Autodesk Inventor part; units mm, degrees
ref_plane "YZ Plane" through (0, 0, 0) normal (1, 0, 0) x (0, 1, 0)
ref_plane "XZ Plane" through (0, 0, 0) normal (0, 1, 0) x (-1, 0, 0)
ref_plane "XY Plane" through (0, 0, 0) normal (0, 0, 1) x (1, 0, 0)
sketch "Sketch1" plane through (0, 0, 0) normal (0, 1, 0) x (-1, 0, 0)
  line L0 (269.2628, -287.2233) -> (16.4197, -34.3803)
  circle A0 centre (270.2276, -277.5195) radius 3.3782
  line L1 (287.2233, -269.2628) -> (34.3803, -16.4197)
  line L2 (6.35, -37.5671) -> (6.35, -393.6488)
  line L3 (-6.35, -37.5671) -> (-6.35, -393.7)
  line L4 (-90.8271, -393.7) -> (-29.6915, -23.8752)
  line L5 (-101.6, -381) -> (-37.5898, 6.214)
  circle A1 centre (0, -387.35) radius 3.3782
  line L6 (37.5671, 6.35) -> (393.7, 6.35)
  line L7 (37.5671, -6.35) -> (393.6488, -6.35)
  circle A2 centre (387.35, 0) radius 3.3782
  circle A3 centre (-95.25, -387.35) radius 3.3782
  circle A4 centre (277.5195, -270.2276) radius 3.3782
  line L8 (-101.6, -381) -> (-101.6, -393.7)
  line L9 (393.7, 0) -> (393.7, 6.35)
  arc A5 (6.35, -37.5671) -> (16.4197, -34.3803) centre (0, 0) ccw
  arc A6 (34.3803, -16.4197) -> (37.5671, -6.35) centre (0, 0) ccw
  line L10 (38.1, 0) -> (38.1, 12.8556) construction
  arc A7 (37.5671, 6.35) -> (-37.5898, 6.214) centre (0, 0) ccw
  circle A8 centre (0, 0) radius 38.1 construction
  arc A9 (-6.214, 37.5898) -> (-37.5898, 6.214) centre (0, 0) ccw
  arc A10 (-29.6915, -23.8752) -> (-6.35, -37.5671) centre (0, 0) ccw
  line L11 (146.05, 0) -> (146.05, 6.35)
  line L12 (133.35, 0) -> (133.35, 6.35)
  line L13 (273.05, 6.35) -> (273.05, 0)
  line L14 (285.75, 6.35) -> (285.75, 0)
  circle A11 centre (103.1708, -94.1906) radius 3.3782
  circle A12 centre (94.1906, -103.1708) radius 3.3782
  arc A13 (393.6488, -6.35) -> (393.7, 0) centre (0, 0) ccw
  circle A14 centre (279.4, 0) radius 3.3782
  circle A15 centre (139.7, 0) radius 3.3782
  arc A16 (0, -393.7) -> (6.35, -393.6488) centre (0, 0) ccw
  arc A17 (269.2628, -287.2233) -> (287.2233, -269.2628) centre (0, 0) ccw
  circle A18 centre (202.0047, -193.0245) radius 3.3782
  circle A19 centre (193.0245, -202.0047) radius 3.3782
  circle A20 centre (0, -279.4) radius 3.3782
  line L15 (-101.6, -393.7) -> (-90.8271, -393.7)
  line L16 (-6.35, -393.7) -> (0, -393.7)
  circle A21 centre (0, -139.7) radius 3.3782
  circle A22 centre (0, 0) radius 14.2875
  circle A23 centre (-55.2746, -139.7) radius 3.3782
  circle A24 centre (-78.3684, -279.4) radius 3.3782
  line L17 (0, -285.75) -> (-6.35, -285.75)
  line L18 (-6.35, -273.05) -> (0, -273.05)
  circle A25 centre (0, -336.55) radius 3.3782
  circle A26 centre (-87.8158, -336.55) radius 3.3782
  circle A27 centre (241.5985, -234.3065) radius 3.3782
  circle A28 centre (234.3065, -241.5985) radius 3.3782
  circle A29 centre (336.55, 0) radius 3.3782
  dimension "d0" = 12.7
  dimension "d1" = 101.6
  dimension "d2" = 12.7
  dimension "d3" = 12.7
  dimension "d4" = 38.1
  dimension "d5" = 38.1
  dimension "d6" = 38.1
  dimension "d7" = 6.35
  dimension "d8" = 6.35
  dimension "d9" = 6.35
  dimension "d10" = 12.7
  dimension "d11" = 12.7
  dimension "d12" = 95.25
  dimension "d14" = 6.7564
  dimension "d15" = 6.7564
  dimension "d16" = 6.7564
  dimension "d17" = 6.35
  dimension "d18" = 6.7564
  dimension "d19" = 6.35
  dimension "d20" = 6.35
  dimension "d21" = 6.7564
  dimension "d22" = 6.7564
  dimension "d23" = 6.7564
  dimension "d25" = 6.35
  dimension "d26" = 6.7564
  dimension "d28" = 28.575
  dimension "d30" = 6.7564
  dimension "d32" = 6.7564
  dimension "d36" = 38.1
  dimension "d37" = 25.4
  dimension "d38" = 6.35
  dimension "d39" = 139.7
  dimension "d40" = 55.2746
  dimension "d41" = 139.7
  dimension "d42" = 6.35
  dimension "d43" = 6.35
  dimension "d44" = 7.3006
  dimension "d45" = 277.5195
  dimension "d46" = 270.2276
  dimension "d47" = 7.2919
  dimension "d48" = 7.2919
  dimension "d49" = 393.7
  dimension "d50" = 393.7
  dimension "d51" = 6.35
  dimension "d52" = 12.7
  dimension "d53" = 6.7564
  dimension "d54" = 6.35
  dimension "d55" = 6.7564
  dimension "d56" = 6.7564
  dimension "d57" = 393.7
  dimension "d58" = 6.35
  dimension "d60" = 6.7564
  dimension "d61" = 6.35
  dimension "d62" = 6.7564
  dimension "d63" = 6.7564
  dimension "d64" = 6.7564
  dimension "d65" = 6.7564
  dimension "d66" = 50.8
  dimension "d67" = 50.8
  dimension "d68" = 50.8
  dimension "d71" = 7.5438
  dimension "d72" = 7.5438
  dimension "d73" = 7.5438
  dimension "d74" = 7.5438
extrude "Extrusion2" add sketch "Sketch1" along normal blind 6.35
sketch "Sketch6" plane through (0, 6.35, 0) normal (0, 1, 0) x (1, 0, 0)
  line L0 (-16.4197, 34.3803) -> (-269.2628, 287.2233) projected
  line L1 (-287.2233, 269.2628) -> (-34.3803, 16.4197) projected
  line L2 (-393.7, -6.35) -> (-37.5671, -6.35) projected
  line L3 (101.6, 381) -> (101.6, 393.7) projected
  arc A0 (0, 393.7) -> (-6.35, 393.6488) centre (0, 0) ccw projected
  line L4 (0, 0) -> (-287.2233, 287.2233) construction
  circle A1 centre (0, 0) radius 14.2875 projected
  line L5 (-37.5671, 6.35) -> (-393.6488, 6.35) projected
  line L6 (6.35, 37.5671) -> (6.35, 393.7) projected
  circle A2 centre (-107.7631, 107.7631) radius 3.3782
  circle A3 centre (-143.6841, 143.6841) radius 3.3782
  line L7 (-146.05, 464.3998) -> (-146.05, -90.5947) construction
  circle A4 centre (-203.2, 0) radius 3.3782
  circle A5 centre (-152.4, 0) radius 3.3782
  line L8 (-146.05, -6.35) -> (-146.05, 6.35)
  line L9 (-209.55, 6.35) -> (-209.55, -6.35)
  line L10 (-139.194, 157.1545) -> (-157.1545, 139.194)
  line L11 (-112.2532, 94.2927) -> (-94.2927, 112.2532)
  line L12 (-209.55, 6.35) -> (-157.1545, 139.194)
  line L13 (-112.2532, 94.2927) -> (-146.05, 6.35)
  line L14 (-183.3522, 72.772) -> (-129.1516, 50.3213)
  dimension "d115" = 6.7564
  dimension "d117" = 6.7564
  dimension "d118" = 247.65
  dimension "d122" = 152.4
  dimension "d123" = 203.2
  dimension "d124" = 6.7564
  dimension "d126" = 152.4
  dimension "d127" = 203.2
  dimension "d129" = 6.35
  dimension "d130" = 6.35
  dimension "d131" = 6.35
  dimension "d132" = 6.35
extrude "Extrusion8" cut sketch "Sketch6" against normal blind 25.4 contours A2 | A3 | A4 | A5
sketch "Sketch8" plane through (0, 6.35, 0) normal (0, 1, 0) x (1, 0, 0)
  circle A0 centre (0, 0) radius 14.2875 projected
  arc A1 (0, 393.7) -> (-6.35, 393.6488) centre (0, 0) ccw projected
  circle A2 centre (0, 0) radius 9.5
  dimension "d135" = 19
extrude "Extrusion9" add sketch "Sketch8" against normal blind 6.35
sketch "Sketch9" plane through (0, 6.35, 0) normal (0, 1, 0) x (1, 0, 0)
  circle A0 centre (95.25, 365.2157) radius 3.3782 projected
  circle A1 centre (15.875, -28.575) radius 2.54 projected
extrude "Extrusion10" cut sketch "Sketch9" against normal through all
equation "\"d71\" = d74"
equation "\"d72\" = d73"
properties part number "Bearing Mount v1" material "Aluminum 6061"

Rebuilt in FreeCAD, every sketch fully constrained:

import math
import FreeCAD as App
import Part
import Sketcher

V = App.Vector
Q = App.Units.Quantity

doc = App.newDocument("Part")
params = doc.addObject("Spreadsheet::Sheet", "Params")
for row, (alias, value) in enumerate([
    ("sketch1_radius", "15.5 in"),
    ("sketch1_radius2", "1.5 in"),
    ("sketch1_radius3", "1.5 in"),
    ("sketch1_diameter", "0.266 in"),
    ("sketch1_diameter2", "0.266 in"),
    ("pad1_length", "0.25 in"),
    ("sketch2_diameter", "0.266 in"),
    ("pocket1_length", "1 in"),
    ("sketch3_diameter", "1.125 in"),
    ("pad2_length", "0.25 in"),
    ("sketch4_diameter", "0.2 in"),
    ("sketch4_diameter2", "0.266 in"),
], start=1):
    params.set(f"A{row}", alias)
    params.set(f"B{row}", "=" + value)
    params.setAlias(f"B{row}", alias)

body = doc.addObject("PartDesign::Body", "Body")

sketch1 = doc.addObject("Sketcher::SketchObject", "Sketch")
body.addObject(sketch1)
sketch1.AttachmentSupport = (doc.XZ_Plane, [""])
sketch1.MapMode = "FlatFace"
sketch1.addGeometry([
    Part.LineSegment(V(-16.4197, -34.3803, 0), V(-269.2628, -287.2233, 0)),
    Part.ArcOfCircle(Part.Circle(V(0, 0, 0), V(0, 0, 1), 393.699987), math.radians(-136.84857), math.radians(-133.15143)),
    Part.LineSegment(V(-287.2233, -269.2628, 0), V(-34.3803, -16.4197, 0)),
    Part.ArcOfCircle(Part.Circle(V(-0.001314, -0.000519, 0), V(0, 0, 1), 38.098611), math.radians(-170.40637), math.radians(-154.471161)),
    Part.LineSegment(V(-37.5671, -6.35, 0), V(-393.6488, -6.35, 0)),
    Part.ArcOfCircle(Part.Circle(V(-0.19986, -0.002418, 0), V(0, 0, 1), 393.50014), math.radians(179.999648), math.radians(180.924283)),
    Part.LineSegment(V(-393.7, 0, 0), V(-393.7, 6.35, 0)),
    Part.LineSegment(V(-393.7, 6.35, 0), V(-37.5671, 6.35, 0)),
    Part.ArcOfCircle(Part.Circle(V(0, 0, 0), V(0, 0, 1), 38.099959), math.radians(9.38672), math.radians(170.40593)),
    Part.LineSegment(V(37.5898, 6.214, 0), V(101.6, -381, 0)),
    Part.LineSegment(V(101.6, -381, 0), V(101.6, -393.7, 0)),
    Part.LineSegment(V(101.6, -393.7, 0), V(90.8271, -393.7, 0)),
    Part.LineSegment(V(90.8271, -393.7, 0), V(29.6915, -23.8752, 0)),
    Part.ArcOfCircle(Part.Circle(V(0, 0, 0), V(0, 0, 1), 38.099959), math.radians(-80.40593), math.radians(-38.803072)),
    Part.LineSegment(V(6.35, -37.5671, 0), V(6.35, -393.7, 0)),
    Part.LineSegment(V(6.35, -393.7, 0), V(0, -393.7, 0)),
    Part.ArcOfCircle(Part.Circle(V(0.000807, 0.200076, 0), V(0, 0, 1), 393.900076), math.radians(-90.923813), math.radians(-90.000117)),
    Part.LineSegment(V(-6.35, -393.6488, 0), V(-6.35, -37.5671, 0)),
    Part.ArcOfCircle(Part.Circle(V(0.000332, 0.001374, 0), V(0, 0, 1), 38.101403), math.radians(-115.528251), math.radians(-99.594218)),
    Part.Circle(V(95.25, -387.35, 0), V(0, 0, 1), 3.3782),
    Part.Circle(V(0, -387.35, 0), V(0, 0, 1), 3.3782),
    Part.Circle(V(87.8158, -336.55, 0), V(0, 0, 1), 3.3782),
    Part.Circle(V(0, -336.55, 0), V(0, 0, 1), 3.3782),
    Part.Circle(V(78.3684, -279.4, 0), V(0, 0, 1), 3.3782),
    Part.Circle(V(0, -279.4, 0), V(0, 0, 1), 3.3782),
    Part.Circle(V(-234.3065, -241.5985, 0), V(0, 0, 1), 3.3782),
    Part.Circle(V(-241.5985, -234.3065, 0), V(0, 0, 1), 3.3782),
    Part.Circle(V(-193.0245, -202.0047, 0), V(0, 0, 1), 3.3782),
    Part.Circle(V(-202.0047, -193.0245, 0), V(0, 0, 1), 3.3782),
    Part.Circle(V(-270.2276, -277.5195, 0), V(0, 0, 1), 3.3782),
    Part.Circle(V(-277.5195, -270.2276, 0), V(0, 0, 1), 3.3782),
    Part.Circle(V(55.2746, -139.7, 0), V(0, 0, 1), 3.3782),
    Part.Circle(V(0, -139.7, 0), V(0, 0, 1), 3.3782),
    Part.Circle(V(-94.1906, -103.1708, 0), V(0, 0, 1), 3.3782),
    Part.Circle(V(-103.1708, -94.1906, 0), V(0, 0, 1), 3.3782),
    Part.Circle(V(0, 0, 0), V(0, 0, 1), 14.2875),
    Part.Circle(V(-139.7, 0, 0), V(0, 0, 1), 3.3782),
    Part.Circle(V(-279.4, 0, 0), V(0, 0, 1), 3.3782),
    Part.Circle(V(-336.55, 0, 0), V(0, 0, 1), 3.3782),
    Part.Circle(V(-387.35, 0, 0), V(0, 0, 1), 3.3782),
], False)
sketch1.addConstraint([
    Sketcher.Constraint("Coincident", 0, 2, 1, 2),
    Sketcher.Constraint("Coincident", 1, 1, 2, 1),
    Sketcher.Constraint("Coincident", 2, 2, 3, 2),
    Sketcher.Constraint("Coincident", 3, 1, 4, 1),
    Sketcher.Constraint("Coincident", 4, 2, 5, 2),
    Sketcher.Constraint("Coincident", 5, 1, 6, 1),
    Sketcher.Constraint("Coincident", 6, 2, 7, 1),
    Sketcher.Constraint("Coincident", 7, 2, 8, 2),
    Sketcher.Constraint("Coincident", 8, 1, 9, 1),
    Sketcher.Constraint("Coincident", 9, 2, 10, 1),
    Sketcher.Constraint("Coincident", 10, 2, 11, 1),
    Sketcher.Constraint("Coincident", 11, 2, 12, 1),
    Sketcher.Constraint("Coincident", 12, 2, 13, 2),
    Sketcher.Constraint("Coincident", 13, 1, 14, 1),
    Sketcher.Constraint("Coincident", 14, 2, 15, 1),
    Sketcher.Constraint("Coincident", 15, 2, 16, 2),
    Sketcher.Constraint("Coincident", 16, 1, 17, 1),
    Sketcher.Constraint("Coincident", 17, 2, 18, 2),
    Sketcher.Constraint("Coincident", 18, 1, 0, 1),
    Sketcher.Constraint("Horizontal", 4),
    Sketcher.Constraint("Vertical", 6),
    Sketcher.Constraint("Horizontal", 7),
    Sketcher.Constraint("Vertical", 10),
    Sketcher.Constraint("Horizontal", 11),
    Sketcher.Constraint("Vertical", 14),
    Sketcher.Constraint("Horizontal", 15),
    Sketcher.Constraint("Vertical", 17),
    Sketcher.Constraint("Coincident", 1, 3, -1, 1),
    Sketcher.Constraint("Coincident", 8, 3, -1, 1),
    Sketcher.Constraint("Coincident", 13, 3, -1, 1),
    Sketcher.Constraint("Coincident", 35, 3, -1, 1),
    Sketcher.Constraint("PointOnObject", 20, 3, -2),
    Sketcher.Constraint("PointOnObject", 22, 3, -2),
    Sketcher.Constraint("PointOnObject", 24, 3, -2),
    Sketcher.Constraint("PointOnObject", 32, 3, -2),
    Sketcher.Constraint("PointOnObject", 36, 3, -1),
    Sketcher.Constraint("PointOnObject", 37, 3, -1),
    Sketcher.Constraint("PointOnObject", 38, 3, -1),
    Sketcher.Constraint("PointOnObject", 39, 3, -1),
    Sketcher.Constraint("PointOnObject", 5, 1, -1),
    Sketcher.Constraint("PointOnObject", 15, 2, -2),
    Sketcher.Constraint("Radius", 1, Q("15.5 in")),
    Sketcher.Constraint("Radius", 8, Q("1.5 in")),
    Sketcher.Constraint("Radius", 13, Q("1.5 in")),
    Sketcher.Constraint("Diameter", 19, Q("0.266 in")),
    Sketcher.Constraint("Diameter", 20, Q("0.266 in")),
    Sketcher.Constraint("Diameter", 21, Q("0.266 in")),
    Sketcher.Constraint("Diameter", 22, Q("0.266 in")),
    Sketcher.Constraint("Diameter", 23, Q("0.266 in")),
    Sketcher.Constraint("Diameter", 24, Q("0.266 in")),
    Sketcher.Constraint("Diameter", 25, Q("0.266 in")),
    Sketcher.Constraint("Diameter", 26, Q("0.266 in")),
    Sketcher.Constraint("Diameter", 27, Q("0.266 in")),
    Sketcher.Constraint("Diameter", 28, Q("0.266 in")),
    Sketcher.Constraint("Diameter", 29, Q("0.266 in")),
    Sketcher.Constraint("Diameter", 30, Q("0.266 in")),
    Sketcher.Constraint("Diameter", 31, Q("0.266 in")),
    Sketcher.Constraint("Diameter", 32, Q("0.266 in")),
    Sketcher.Constraint("Diameter", 33, Q("0.266 in")),
    Sketcher.Constraint("Diameter", 34, Q("0.266 in")),
    Sketcher.Constraint("Diameter", 35, Q("1.125 in")),
    Sketcher.Constraint("Diameter", 36, Q("0.266 in")),
    Sketcher.Constraint("Diameter", 37, Q("0.266 in")),
    Sketcher.Constraint("Diameter", 38, Q("0.266 in")),
    Sketcher.Constraint("Diameter", 39, Q("0.266 in")),
    Sketcher.Constraint("DistanceY", 10, 2, 10, 1, Q("0.5 in")),
    Sketcher.Constraint("DistanceX", -1, 1, 9, 2, Q("4 in")),
    Sketcher.Constraint("DistanceY", 19, 3, 21, 3, Q("2 in")),
    Sketcher.Constraint("DistanceY", 20, 3, 21, 3, Q("2 in")),
    Sketcher.Constraint("DistanceY", 20, 3, 22, 3, Q("2 in")),
    Sketcher.Constraint("DistanceX", 39, 3, 38, 3, Q("2 in")),
    Sketcher.Constraint("DistanceY", 9, 2, 23, 3, Q("4 in")),
    Sketcher.Constraint("DistanceX", 15, 2, 15, 1, Q("0.25 in")),
    Sketcher.Constraint("DistanceY", 6, 1, 6, 2, Q("0.25 in")),
    Sketcher.Constraint("DistanceY", 31, 3, -1, 1, Q("5.5 in")),
    Sketcher.Constraint("DistanceY", 32, 3, -1, 1, Q("5.5 in")),
    Sketcher.Constraint("DistanceX", 36, 3, -1, 1, Q("5.5 in")),
    Sketcher.Constraint("DistanceX", 5, 1, -1, 1, Q("15.5 in")),
    Sketcher.Constraint("DistanceY", 10, 2, -1, 1, Q("15.5 in")),
    Sketcher.Constraint("DistanceY", 14, 2, -1, 1, Q("15.5 in")),
    Sketcher.Constraint("DistanceY", 24, 3, 31, 3, Q("5.5 in")),
    Sketcher.Constraint("DistanceX", 37, 3, 36, 3, Q("5.5 in")),
    Sketcher.Constraint("DistanceY", 4, 2, 6, 2, Q("0.5 in")),
    Sketcher.Constraint("DistanceX", 17, 2, 13, 1, Q("0.5 in")),
    Sketcher.Constraint("DistanceX", -1, 1, 19, 3, Q("3.75 in")),
    Sketcher.Constraint("DistanceX", 5, 1, 39, 3, Q("0.25 in")),
    Sketcher.Constraint("DistanceY", 19, 3, 9, 2, Q("0.25 in")),
    Sketcher.Constraint("DistanceX", 29, 3, -1, 1, 270.2276),
    Sketcher.Constraint("DistanceY", 29, 3, -1, 1, 277.5195),
    Sketcher.Constraint("DistanceX", 30, 3, -1, 1, 277.5195),
    Sketcher.Constraint("DistanceY", 30, 3, -1, 1, 270.2276),
    Sketcher.Constraint("DistanceX", -1, 1, 31, 3, 55.2746),
    Sketcher.Constraint("Radius", 3, 38.0986),
    Sketcher.Constraint("Radius", 5, 393.5001),
    Sketcher.Constraint("Radius", 16, 393.9),
    Sketcher.Constraint("Radius", 18, 38.1014),
    Sketcher.Constraint("DistanceX", 18, 3, 19, 3, Q("3.7499882 in")),
    Sketcher.Constraint("DistanceX", 26, 3, 25, 3, 7.292),
    Sketcher.Constraint("DistanceY", 25, 3, 26, 3, 7.292),
    Sketcher.Constraint("DistanceY", 32, 3, 3, 3, 139.6995),
    Sketcher.Constraint("DistanceY", 0, 2, -1, 1, Q("11.308 in")),
    Sketcher.Constraint("DistanceX", 1, 1, -1, 1, Q("11.308 in")),
    Sketcher.Constraint("DistanceY", 17, 2, 3, 3, Q("1.479 in")),
    Sketcher.Constraint("DistanceX", 4, 2, 4, 1, 356.0817),
    Sketcher.Constraint("DistanceX", 11, 2, 11, 1, 10.773),
    Sketcher.Constraint("DistanceY", 17, 1, 17, 2, 356.0817),
    Sketcher.Constraint("DistanceY", 5, 3, -1, 1, Q("0.0001 in")),
    Sketcher.Constraint("DistanceX", 27, 3, -1, 1, Q("7.5994 in")),
    Sketcher.Constraint("DistanceY", 28, 3, -1, 1, Q("7.5994 in")),
    Sketcher.Constraint("DistanceX", 33, 3, -1, 1, Q("3.7083 in")),
    Sketcher.Constraint("DistanceY", 34, 3, -1, 1, Q("3.7083 in")),
    Sketcher.Constraint("DistanceY", 25, 3, 27, 3, Q("1.5588 in")),
    Sketcher.Constraint("DistanceX", 26, 3, 28, 3, Q("1.5588 in")),
    Sketcher.Constraint("DistanceY", 29, 3, 26, 3, Q("1.7013 in")),
    Sketcher.Constraint("DistanceX", 30, 3, 25, 3, Q("1.7013 in")),
    Sketcher.Constraint("DistanceX", 31, 3, 23, 3, Q("0.9092 in")),
    Sketcher.Constraint("DistanceX", 34, 3, 3, 3, Q("4.0618 in")),
    Sketcher.Constraint("DistanceX", 2, 2, 3, 3, Q("1.3535 in")),
    Sketcher.Constraint("DistanceX", 18, 3, 8, 1, Q("1.4799 in")),
    Sketcher.Constraint("DistanceX", 2, 2, 18, 1, Q("0.7071 in")),
    Sketcher.Constraint("Distance", 12, 374.844),
    Sketcher.Constraint("DistanceX", -1, 1, 21, 3, 87.8158),
    Sketcher.Constraint("DistanceY", 33, 3, -1, 1, 103.1708),
])
sketch1.setExpression("Constraints[41]", "Params.sketch1_radius")
sketch1.setExpression("Constraints[42]", "Params.sketch1_radius2")
sketch1.setExpression("Constraints[43]", "Params.sketch1_radius3")
sketch1.setExpression("Constraints[44]", "Params.sketch1_diameter")
sketch1.setExpression("Constraints[45]", "Params.sketch1_diameter2")
pad1 = doc.addObject("PartDesign::Pad", "Pad")
body.addObject(pad1)
pad1.Profile = sketch1
pad1.setExpression("Length", "Params.pad1_length")
pad1.Reversed = True

sketch2 = doc.addObject("Sketcher::SketchObject", "Sketch001")
body.addObject(sketch2)
sketch2.AttachmentSupport = (doc.XZ_Plane, [""])
sketch2.MapMode = "FlatFace"
sketch2.AttachmentOffset = App.Placement(V(0, 0, -0.25 * 25.4), App.Rotation())
sketch2.addGeometry([
    Part.Circle(V(-107.8, -107.8, 0), V(0, 0, 1), 3.4),
    Part.Circle(V(-143.7, -143.7, 0), V(0, 0, 1), 3.4),
    Part.Circle(V(-203.2, 0, 0), V(0, 0, 1), 3.4),
    Part.Circle(V(-152.4, 0, 0), V(0, 0, 1), 3.4),
], False)
sketch2.addConstraint([
    Sketcher.Constraint("Equal", 0, 1),
    Sketcher.Constraint("Equal", 1, 2),
    Sketcher.Constraint("Equal", 2, 3),
    Sketcher.Constraint("PointOnObject", 2, 3, -1),
    Sketcher.Constraint("PointOnObject", 3, 3, -1),
    Sketcher.Constraint("Diameter", 0, Q("0.266 in")),
    Sketcher.Constraint("DistanceX", 2, 3, -1, 1, Q("8 in")),
    Sketcher.Constraint("DistanceX", 3, 3, -1, 1, Q("6 in")),
    Sketcher.Constraint("DistanceX", 0, 3, -1, 1, 107.763),
    Sketcher.Constraint("DistanceY", 0, 3, -1, 1, 107.763),
    Sketcher.Constraint("DistanceX", 1, 3, -1, 1, 143.684),
    Sketcher.Constraint("DistanceY", 1, 3, -1, 1, 143.684),
])
sketch2.setExpression("Constraints[5]", "Params.sketch2_diameter")
pocket1 = doc.addObject("PartDesign::Pocket", "Pocket")
body.addObject(pocket1)
pocket1.Profile = sketch2
pocket1.setExpression("Length", "Params.pocket1_length")
pocket1.Reversed = True

sketch3 = doc.addObject("Sketcher::SketchObject", "Sketch002")
body.addObject(sketch3)
sketch3.AttachmentSupport = (doc.XZ_Plane, [""])
sketch3.MapMode = "FlatFace"
sketch3.AttachmentOffset = App.Placement(V(0, 0, -0.25 * 25.4), App.Rotation())
sketch3.addGeometry([
    Part.Circle(V(0, 0, 0), V(0, 0, 1), 14),
    Part.Circle(V(0, 0, 0), V(0, 0, 1), 10),
], False)
sketch3.addConstraint([
    Sketcher.Constraint("Coincident", 0, 3, -1, 1),
    Sketcher.Constraint("Coincident", 1, 3, -1, 1),
    Sketcher.Constraint("Diameter", 1, 19.0),
    Sketcher.Constraint("Diameter", 0, Q("1.125 in")),
])
sketch3.setExpression("Constraints[3]", "Params.sketch3_diameter")
pad2 = doc.addObject("PartDesign::Pad", "Pad001")
body.addObject(pad2)
pad2.Profile = sketch3
pad2.setExpression("Length", "Params.pad2_length")

sketch4 = doc.addObject("Sketcher::SketchObject", "Sketch003")
body.addObject(sketch4)
sketch4.AttachmentSupport = (doc.XZ_Plane, [""])
sketch4.MapMode = "FlatFace"
sketch4.AttachmentOffset = App.Placement(V(0, 0, -0.25 * 25.4), App.Rotation())
sketch4.addGeometry([
    Part.Circle(V(95.2, -365.2, 0), V(0, 0, 1), 3.4),
    Part.Circle(V(15.9, 28.6, 0), V(0, 0, 1), 2.5),
], False)
sketch4.addConstraint([
    Sketcher.Constraint("Diameter", 1, Q("0.2 in")),
    Sketcher.Constraint("Diameter", 0, Q("0.266 in")),
    Sketcher.Constraint("DistanceX", -1, 1, 0, 3, Q("3.75 in")),
    Sketcher.Constraint("DistanceX", -1, 1, 1, 3, Q("0.625 in")),
    Sketcher.Constraint("DistanceY", -1, 1, 1, 3, Q("1.125 in")),
    Sketcher.Constraint("DistanceY", 0, 3, -1, 1, 365.2157),
])
sketch4.setExpression("Constraints[0]", "Params.sketch4_diameter")
sketch4.setExpression("Constraints[1]", "Params.sketch4_diameter2")
pocket2 = doc.addObject("PartDesign::Pocket", "Pocket001")
body.addObject(pocket2)
pocket2.Profile = sketch4
pocket2.Type = "ThroughAll"
pocket2.Reversed = True

doc.recompute()
